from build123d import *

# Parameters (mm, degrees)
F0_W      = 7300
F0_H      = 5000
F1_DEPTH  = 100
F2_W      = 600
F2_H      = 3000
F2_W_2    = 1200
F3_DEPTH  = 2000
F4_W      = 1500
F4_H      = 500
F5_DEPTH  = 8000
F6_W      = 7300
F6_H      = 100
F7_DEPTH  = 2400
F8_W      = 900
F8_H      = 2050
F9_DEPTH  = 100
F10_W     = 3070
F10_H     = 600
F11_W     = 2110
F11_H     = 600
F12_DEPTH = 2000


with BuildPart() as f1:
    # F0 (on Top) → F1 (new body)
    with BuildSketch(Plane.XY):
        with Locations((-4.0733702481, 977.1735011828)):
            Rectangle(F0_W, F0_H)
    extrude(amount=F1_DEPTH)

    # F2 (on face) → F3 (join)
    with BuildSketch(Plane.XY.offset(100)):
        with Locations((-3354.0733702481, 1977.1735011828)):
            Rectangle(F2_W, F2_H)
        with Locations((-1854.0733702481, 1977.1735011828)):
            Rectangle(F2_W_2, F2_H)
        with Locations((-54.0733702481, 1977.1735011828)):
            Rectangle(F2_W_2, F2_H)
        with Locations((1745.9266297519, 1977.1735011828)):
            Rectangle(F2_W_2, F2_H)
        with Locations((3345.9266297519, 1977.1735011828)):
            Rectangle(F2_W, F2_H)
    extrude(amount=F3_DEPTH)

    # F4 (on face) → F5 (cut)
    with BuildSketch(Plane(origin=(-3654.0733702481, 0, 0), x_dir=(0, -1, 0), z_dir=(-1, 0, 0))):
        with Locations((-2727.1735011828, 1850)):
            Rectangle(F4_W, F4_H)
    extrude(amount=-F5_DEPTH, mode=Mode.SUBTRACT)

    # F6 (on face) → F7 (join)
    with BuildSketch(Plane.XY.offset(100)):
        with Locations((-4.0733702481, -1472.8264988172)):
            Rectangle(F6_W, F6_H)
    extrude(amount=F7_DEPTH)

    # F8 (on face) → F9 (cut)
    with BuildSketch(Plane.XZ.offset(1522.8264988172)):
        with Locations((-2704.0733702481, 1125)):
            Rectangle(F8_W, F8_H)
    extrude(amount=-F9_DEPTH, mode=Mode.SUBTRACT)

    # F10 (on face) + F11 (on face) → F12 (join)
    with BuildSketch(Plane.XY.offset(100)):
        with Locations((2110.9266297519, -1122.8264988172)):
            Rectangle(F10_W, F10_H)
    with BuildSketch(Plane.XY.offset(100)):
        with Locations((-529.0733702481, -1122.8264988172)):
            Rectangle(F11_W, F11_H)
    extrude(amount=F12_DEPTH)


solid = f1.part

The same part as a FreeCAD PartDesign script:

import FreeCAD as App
import Part
import Sketcher
from FreeCAD import Vector
Q = App.Units.Quantity

doc = App.newDocument("Part")
body = doc.addObject("PartDesign::Body", "Body")

sketch1 = body.newObject("Sketcher::SketchObject", "Sketch")
sketch1.AttachmentSupport = (doc.getObject("XY_Plane"), [""])
sketch1.MapMode = "FlatFace"
sketch1.addGeometry([
    Part.LineSegment(Vector(-3654, 3477, 0), Vector(-3654, -1523, 0)),
    Part.LineSegment(Vector(-3654, -1523, 0), Vector(3646, -1523, 0)),
    Part.LineSegment(Vector(3646, -1523, 0), Vector(3646, 3477, 0)),
    Part.LineSegment(Vector(3646, 3477, 0), Vector(-3654, 3477, 0)),
], False)
sketch1.addConstraint([
    Sketcher.Constraint("Coincident", 0, 2, 1, 1),
    Sketcher.Constraint("Coincident", 1, 2, 2, 1),
    Sketcher.Constraint("Coincident", 2, 2, 3, 1),
    Sketcher.Constraint("Coincident", 3, 2, 0, 1),
    Sketcher.Constraint("Vertical", 0),
    Sketcher.Constraint("Horizontal", 1),
    Sketcher.Constraint("Vertical", 2),
    Sketcher.Constraint("Horizontal", 3),
    Sketcher.Constraint("DistanceX", 1, 1, 1, 2, Q("7300 mm")),
    Sketcher.Constraint("DistanceY", 0, 2, 0, 1, Q("5000 mm")),
    Sketcher.Constraint("DistanceY", 0, 2, -1, 1, Q("1522.826499 mm")),
    Sketcher.Constraint("DistanceX", 0, 2, -1, 1, Q("3654.07337 mm")),
])
pad1 = body.newObject("PartDesign::Pad", "Pad")
pad1.Profile = sketch1
pad1.Length = 100

sketch2 = body.newObject("Sketcher::SketchObject", "Sketch001")
sketch2.AttachmentSupport = (doc.getObject("XY_Plane"), [""])
sketch2.MapMode = "FlatFace"
sketch2.AttachmentOffset = App.Placement(Vector(0, 0, 100), App.Rotation())
sketch2.addGeometry([
    Part.LineSegment(Vector(-3654, 3477, 0), Vector(-3654, 477, 0)),
    Part.LineSegment(Vector(-3654, 477, 0), Vector(-3054, 477, 0)),
    Part.LineSegment(Vector(-3054, 477, 0), Vector(-3054, 3477, 0)),
    Part.LineSegment(Vector(-3054, 3477, 0), Vector(-3654, 3477, 0)),
    Part.LineSegment(Vector(-2454, 3477, 0), Vector(-2454, 477, 0)),
    Part.LineSegment(Vector(-2454, 477, 0), Vector(-1254, 477, 0)),
    Part.LineSegment(Vector(-1254, 477, 0), Vector(-1254, 3477, 0)),
    Part.LineSegment(Vector(-1254, 3477, 0), Vector(-2454, 3477, 0)),
    Part.LineSegment(Vector(-654, 3477, 0), Vector(-654, 477, 0)),
    Part.LineSegment(Vector(-654, 477, 0), Vector(546, 477, 0)),
    Part.LineSegment(Vector(546, 477, 0), Vector(546, 3477, 0)),
    Part.LineSegment(Vector(546, 3477, 0), Vector(-654, 3477, 0)),
    Part.LineSegment(Vector(1146, 3477, 0), Vector(1146, 477, 0)),
    Part.LineSegment(Vector(1146, 477, 0), Vector(2346, 477, 0)),
    Part.LineSegment(Vector(2346, 477, 0), Vector(2346, 3477, 0)),
    Part.LineSegment(Vector(2346, 3477, 0), Vector(1146, 3477, 0)),
    Part.LineSegment(Vector(3046, 3477, 0), Vector(3046, 477, 0)),
    Part.LineSegment(Vector(3046, 477, 0), Vector(3646, 477, 0)),
    Part.LineSegment(Vector(3646, 477, 0), Vector(3646, 3477, 0)),
    Part.LineSegment(Vector(3646, 3477, 0), Vector(3046, 3477, 0)),
], False)
sketch2.addConstraint([
    Sketcher.Constraint("Coincident", 0, 2, 1, 1),
    Sketcher.Constraint("Coincident", 1, 2, 2, 1),
    Sketcher.Constraint("Coincident", 2, 2, 3, 1),
    Sketcher.Constraint("Coincident", 3, 2, 0, 1),
    Sketcher.Constraint("Coincident", 4, 2, 5, 1),
    Sketcher.Constraint("Coincident", 5, 2, 6, 1),
    Sketcher.Constraint("Coincident", 6, 2, 7, 1),
    Sketcher.Constraint("Coincident", 7, 2, 4, 1),
    Sketcher.Constraint("Coincident", 8, 2, 9, 1),
    Sketcher.Constraint("Coincident", 9, 2, 10, 1),
    Sketcher.Constraint("Coincident", 10, 2, 11, 1),
    Sketcher.Constraint("Coincident", 11, 2, 8, 1),
    Sketcher.Constraint("Coincident", 12, 2, 13, 1),
    Sketcher.Constraint("Coincident", 13, 2, 14, 1),
    Sketcher.Constraint("Coincident", 14, 2, 15, 1),
    Sketcher.Constraint("Coincident", 15, 2, 12, 1),
    Sketcher.Constraint("Coincident", 16, 2, 17, 1),
    Sketcher.Constraint("Coincident", 17, 2, 18, 1),
    Sketcher.Constraint("Coincident", 18, 2, 19, 1),
    Sketcher.Constraint("Coincident", 19, 2, 16, 1),
    Sketcher.Constraint("Vertical", 0),
    Sketcher.Constraint("Horizontal", 1),
    Sketcher.Constraint("Vertical", 2),
    Sketcher.Constraint("Horizontal", 3),
    Sketcher.Constraint("Vertical", 4),
    Sketcher.Constraint("Horizontal", 5),
    Sketcher.Constraint("Vertical", 6),
    Sketcher.Constraint("Horizontal", 7),
    Sketcher.Constraint("Vertical", 8),
    Sketcher.Constraint("Horizontal", 9),
    Sketcher.Constraint("Vertical", 10),
    Sketcher.Constraint("Horizontal", 11),
    Sketcher.Constraint("Vertical", 12),
    Sketcher.Constraint("Horizontal", 13),
    Sketcher.Constraint("Vertical", 14),
    Sketcher.Constraint("Horizontal", 15),
    Sketcher.Constraint("Vertical", 16),
    Sketcher.Constraint("Horizontal", 17),
    Sketcher.Constraint("Vertical", 18),
    Sketcher.Constraint("Horizontal", 19),
    Sketcher.Constraint("Horizontal", 1, 2, 4, 2),
    Sketcher.Constraint("Horizontal", 3, 2, 6, 2),
    Sketcher.Constraint("Horizontal", 5, 2, 8, 2),
    Sketcher.Constraint("Horizontal", 7, 2, 10, 2),
    Sketcher.Constraint("Horizontal", 9, 2, 12, 2),
    Sketcher.Constraint("Horizontal", 11, 2, 14, 2),
    Sketcher.Constraint("Horizontal", 13, 2, 16, 2),
    Sketcher.Constraint("Horizontal", 15, 2, 18, 2),
    Sketcher.Constraint("Equal", 7, 9),
    Sketcher.Constraint("Equal", 11, 13),
    Sketcher.Constraint("Equal", 3, 17),
    Sketcher.Constraint("DistanceX", 1, 1, 1, 2, Q("600 mm")),
    Sketcher.Constraint("DistanceX", 5, 1, 5, 2, Q("1200 mm")),
    Sketcher.Constraint("DistanceY", 0, 2, 0, 1, Q("3000 mm")),
    Sketcher.Constraint("DistanceX", 1, 2, 4, 2, Q("600 mm")),
    Sketcher.Constraint("DistanceX", 5, 2, 8, 2, Q("600 mm")),
    Sketcher.Constraint("DistanceX", 9, 2, 12, 2, Q("600 mm")),
    Sketcher.Constraint("DistanceX", 13, 2, 16, 2, Q("700 mm")),
    Sketcher.Constraint("DistanceY", -1, 1, 0, 2, Q("477.173501 mm")),
    Sketcher.Constraint("DistanceX", 0, 2, -1, 1, Q("3654.07337 mm")),
])
pad2 = body.newObject("PartDesign::Pad", "Pad001")
pad2.Profile = sketch2
pad2.Length = 2000

sketch3 = body.newObject("Sketcher::SketchObject", "Sketch002")
sketch3.AttachmentSupport = (doc.getObject("YZ_Plane"), [""])
sketch3.MapMode = "FlatFace"
sketch3.AttachmentOffset = App.Placement(Vector(0, 0, -3654.07337), App.Rotation())
sketch3.addGeometry([
    Part.LineSegment(Vector(3477, 2100, 0), Vector(3477, 1600, 0)),
    Part.LineSegment(Vector(3477, 1600, 0), Vector(1977, 1600, 0)),
    Part.LineSegment(Vector(1977, 1600, 0), Vector(1977, 2100, 0)),
    Part.LineSegment(Vector(1977, 2100, 0), Vector(3477, 2100, 0)),
], False)
sketch3.addConstraint([
    Sketcher.Constraint("Coincident", 0, 2, 1, 1),
    Sketcher.Constraint("Coincident", 1, 2, 2, 1),
    Sketcher.Constraint("Coincident", 2, 2, 3, 1),
    Sketcher.Constraint("Coincident", 3, 2, 0, 1),
    Sketcher.Constraint("Vertical", 0),
    Sketcher.Constraint("Horizontal", 1),
    Sketcher.Constraint("Vertical", 2),
    Sketcher.Constraint("Horizontal", 3),
    Sketcher.Constraint("DistanceX", 1, 2, 1, 1, Q("1500 mm")),
    Sketcher.Constraint("DistanceY", 0, 2, 0, 1, Q("500 mm")),
    Sketcher.Constraint("DistanceY", -1, 1, 0, 2, Q("1600 mm")),
    Sketcher.Constraint("DistanceX", -1, 1, 0, 2, Q("3477.173501 mm")),
])
pocket1 = body.newObject("PartDesign::Pocket", "Pocket")
pocket1.Profile = sketch3
pocket1.Length = 8000
pocket1.Reversed = True

sketch4 = body.newObject("Sketcher::SketchObject", "Sketch003")
sketch4.AttachmentSupport = (doc.getObject("XY_Plane"), [""])
sketch4.MapMode = "FlatFace"
sketch4.AttachmentOffset = App.Placement(Vector(0, 0, 100), App.Rotation())
sketch4.addGeometry([
    Part.LineSegment(Vector(-3654, -1423, 0), Vector(-3654, -1523, 0)),
    Part.LineSegment(Vector(-3654, -1523, 0), Vector(3646, -1523, 0)),
    Part.LineSegment(Vector(3646, -1523, 0), Vector(3646, -1423, 0)),
    Part.LineSegment(Vector(3646, -1423, 0), Vector(-3654, -1423, 0)),
], False)
sketch4.addConstraint([
    Sketcher.Constraint("Coincident", 0, 2, 1, 1),
    Sketcher.Constraint("Coincident", 1, 2, 2, 1),
    Sketcher.Constraint("Coincident", 2, 2, 3, 1),
    Sketcher.Constraint("Coincident", 3, 2, 0, 1),
    Sketcher.Constraint("Vertical", 0),
    Sketcher.Constraint("Horizontal", 1),
    Sketcher.Constraint("Vertical", 2),
    Sketcher.Constraint("Horizontal", 3),
    Sketcher.Constraint("DistanceX", 1, 1, 1, 2, Q("7300 mm")),
    Sketcher.Constraint("DistanceY", 0, 2, 0, 1, Q("100 mm")),
    Sketcher.Constraint("DistanceY", 0, 2, -1, 1, Q("1522.826499 mm")),
    Sketcher.Constraint("DistanceX", 0, 2, -1, 1, Q("3654.07337 mm")),
])
pad3 = body.newObject("PartDesign::Pad", "Pad002")
pad3.Profile = sketch4
pad3.Length = 2400

sketch5 = body.newObject("Sketcher::SketchObject", "Sketch004")
sketch5.AttachmentSupport = (doc.getObject("XZ_Plane"), [""])
sketch5.MapMode = "FlatFace"
sketch5.AttachmentOffset = App.Placement(Vector(0, 0, 1522.826499), App.Rotation())
sketch5.addGeometry([
    Part.LineSegment(Vector(-3154, 2150, 0), Vector(-3154, 100, 0)),
    Part.LineSegment(Vector(-3154, 100, 0), Vector(-2254, 100, 0)),
    Part.LineSegment(Vector(-2254, 100, 0), Vector(-2254, 2150, 0)),
    Part.LineSegment(Vector(-2254, 2150, 0), Vector(-3154, 2150, 0)),
], False)
sketch5.addConstraint([
    Sketcher.Constraint("Coincident", 0, 2, 1, 1),
    Sketcher.Constraint("Coincident", 1, 2, 2, 1),
    Sketcher.Constraint("Coincident", 2, 2, 3, 1),
    Sketcher.Constraint("Coincident", 3, 2, 0, 1),
    Sketcher.Constraint("Vertical", 0),
    Sketcher.Constraint("Horizontal", 1),
    Sketcher.Constraint("Vertical", 2),
    Sketcher.Constraint("Horizontal", 3),
    Sketcher.Constraint("DistanceX", 1, 1, 1, 2, Q("900 mm")),
    Sketcher.Constraint("DistanceY", 0, 2, 0, 1, Q("2050 mm")),
    Sketcher.Constraint("DistanceY", -1, 1, 0, 2, Q("100 mm")),
    Sketcher.Constraint("DistanceX", 0, 2, -1, 1, Q("3154.07337 mm")),
])
pocket2 = body.newObject("PartDesign::Pocket", "Pocket001")
pocket2.Profile = sketch5
pocket2.Length = 100

sketch6 = body.newObject("Sketcher::SketchObject", "Sketch005")
sketch6.AttachmentSupport = (doc.getObject("XY_Plane"), [""])
sketch6.MapMode = "FlatFace"
sketch6.AttachmentOffset = App.Placement(Vector(0, 0, 100), App.Rotation())
sketch6.addGeometry([
    Part.LineSegment(Vector(576, -823, 0), Vector(576, -1423, 0)),
    Part.LineSegment(Vector(576, -1423, 0), Vector(3646, -1423, 0)),
    Part.LineSegment(Vector(3646, -1423, 0), Vector(3646, -823, 0)),
    Part.LineSegment(Vector(3646, -823, 0), Vector(576, -823, 0)),
    Part.LineSegment(Vector(-1584, -823, 0), Vector(-1584, -1423, 0)),
    Part.LineSegment(Vector(-1584, -1423, 0), Vector(526, -1423, 0)),
    Part.LineSegment(Vector(526, -1423, 0), Vector(526, -823, 0)),
    Part.LineSegment(Vector(526, -823, 0), Vector(-1584, -823, 0)),
], False)
sketch6.addConstraint([
    Sketcher.Constraint("Coincident", 0, 2, 1, 1),
    Sketcher.Constraint("Coincident", 1, 2, 2, 1),
    Sketcher.Constraint("Coincident", 2, 2, 3, 1),
    Sketcher.Constraint("Coincident", 3, 2, 0, 1),
    Sketcher.Constraint("Coincident", 4, 2, 5, 1),
    Sketcher.Constraint("Coincident", 5, 2, 6, 1),
    Sketcher.Constraint("Coincident", 6, 2, 7, 1),
    Sketcher.Constraint("Coincident", 7, 2, 4, 1),
    Sketcher.Constraint("Vertical", 0),
    Sketcher.Constraint("Horizontal", 1),
    Sketcher.Constraint("Vertical", 2),
    Sketcher.Constraint("Horizontal", 3),
    Sketcher.Constraint("Vertical", 4),
    Sketcher.Constraint("Horizontal", 5),
    Sketcher.Constraint("Vertical", 6),
    Sketcher.Constraint("Horizontal", 7),
    Sketcher.Constraint("Horizontal", 1, 2, 4, 2),
    Sketcher.Constraint("Horizontal", 3, 2, 6, 2),
    Sketcher.Constraint("DistanceX", 1, 1, 1, 2, Q("3070 mm")),
    Sketcher.Constraint("DistanceX", 5, 1, 5, 2, Q("2110 mm")),
    Sketcher.Constraint("DistanceY", 0, 2, 0, 1, Q("600 mm")),
    Sketcher.Constraint("DistanceX", 4, 2, 0, 2, Q("2160 mm")),
    Sketcher.Constraint("DistanceY", 0, 2, -1, 1, Q("1422.826499 mm")),
    Sketcher.Constraint("DistanceX", -1, 1, 0, 2, Q("575.92663 mm")),
])
pad4 = body.newObject("PartDesign::Pad", "Pad003")
pad4.Profile = sketch6
pad4.Length = 2000

doc.recompute()
